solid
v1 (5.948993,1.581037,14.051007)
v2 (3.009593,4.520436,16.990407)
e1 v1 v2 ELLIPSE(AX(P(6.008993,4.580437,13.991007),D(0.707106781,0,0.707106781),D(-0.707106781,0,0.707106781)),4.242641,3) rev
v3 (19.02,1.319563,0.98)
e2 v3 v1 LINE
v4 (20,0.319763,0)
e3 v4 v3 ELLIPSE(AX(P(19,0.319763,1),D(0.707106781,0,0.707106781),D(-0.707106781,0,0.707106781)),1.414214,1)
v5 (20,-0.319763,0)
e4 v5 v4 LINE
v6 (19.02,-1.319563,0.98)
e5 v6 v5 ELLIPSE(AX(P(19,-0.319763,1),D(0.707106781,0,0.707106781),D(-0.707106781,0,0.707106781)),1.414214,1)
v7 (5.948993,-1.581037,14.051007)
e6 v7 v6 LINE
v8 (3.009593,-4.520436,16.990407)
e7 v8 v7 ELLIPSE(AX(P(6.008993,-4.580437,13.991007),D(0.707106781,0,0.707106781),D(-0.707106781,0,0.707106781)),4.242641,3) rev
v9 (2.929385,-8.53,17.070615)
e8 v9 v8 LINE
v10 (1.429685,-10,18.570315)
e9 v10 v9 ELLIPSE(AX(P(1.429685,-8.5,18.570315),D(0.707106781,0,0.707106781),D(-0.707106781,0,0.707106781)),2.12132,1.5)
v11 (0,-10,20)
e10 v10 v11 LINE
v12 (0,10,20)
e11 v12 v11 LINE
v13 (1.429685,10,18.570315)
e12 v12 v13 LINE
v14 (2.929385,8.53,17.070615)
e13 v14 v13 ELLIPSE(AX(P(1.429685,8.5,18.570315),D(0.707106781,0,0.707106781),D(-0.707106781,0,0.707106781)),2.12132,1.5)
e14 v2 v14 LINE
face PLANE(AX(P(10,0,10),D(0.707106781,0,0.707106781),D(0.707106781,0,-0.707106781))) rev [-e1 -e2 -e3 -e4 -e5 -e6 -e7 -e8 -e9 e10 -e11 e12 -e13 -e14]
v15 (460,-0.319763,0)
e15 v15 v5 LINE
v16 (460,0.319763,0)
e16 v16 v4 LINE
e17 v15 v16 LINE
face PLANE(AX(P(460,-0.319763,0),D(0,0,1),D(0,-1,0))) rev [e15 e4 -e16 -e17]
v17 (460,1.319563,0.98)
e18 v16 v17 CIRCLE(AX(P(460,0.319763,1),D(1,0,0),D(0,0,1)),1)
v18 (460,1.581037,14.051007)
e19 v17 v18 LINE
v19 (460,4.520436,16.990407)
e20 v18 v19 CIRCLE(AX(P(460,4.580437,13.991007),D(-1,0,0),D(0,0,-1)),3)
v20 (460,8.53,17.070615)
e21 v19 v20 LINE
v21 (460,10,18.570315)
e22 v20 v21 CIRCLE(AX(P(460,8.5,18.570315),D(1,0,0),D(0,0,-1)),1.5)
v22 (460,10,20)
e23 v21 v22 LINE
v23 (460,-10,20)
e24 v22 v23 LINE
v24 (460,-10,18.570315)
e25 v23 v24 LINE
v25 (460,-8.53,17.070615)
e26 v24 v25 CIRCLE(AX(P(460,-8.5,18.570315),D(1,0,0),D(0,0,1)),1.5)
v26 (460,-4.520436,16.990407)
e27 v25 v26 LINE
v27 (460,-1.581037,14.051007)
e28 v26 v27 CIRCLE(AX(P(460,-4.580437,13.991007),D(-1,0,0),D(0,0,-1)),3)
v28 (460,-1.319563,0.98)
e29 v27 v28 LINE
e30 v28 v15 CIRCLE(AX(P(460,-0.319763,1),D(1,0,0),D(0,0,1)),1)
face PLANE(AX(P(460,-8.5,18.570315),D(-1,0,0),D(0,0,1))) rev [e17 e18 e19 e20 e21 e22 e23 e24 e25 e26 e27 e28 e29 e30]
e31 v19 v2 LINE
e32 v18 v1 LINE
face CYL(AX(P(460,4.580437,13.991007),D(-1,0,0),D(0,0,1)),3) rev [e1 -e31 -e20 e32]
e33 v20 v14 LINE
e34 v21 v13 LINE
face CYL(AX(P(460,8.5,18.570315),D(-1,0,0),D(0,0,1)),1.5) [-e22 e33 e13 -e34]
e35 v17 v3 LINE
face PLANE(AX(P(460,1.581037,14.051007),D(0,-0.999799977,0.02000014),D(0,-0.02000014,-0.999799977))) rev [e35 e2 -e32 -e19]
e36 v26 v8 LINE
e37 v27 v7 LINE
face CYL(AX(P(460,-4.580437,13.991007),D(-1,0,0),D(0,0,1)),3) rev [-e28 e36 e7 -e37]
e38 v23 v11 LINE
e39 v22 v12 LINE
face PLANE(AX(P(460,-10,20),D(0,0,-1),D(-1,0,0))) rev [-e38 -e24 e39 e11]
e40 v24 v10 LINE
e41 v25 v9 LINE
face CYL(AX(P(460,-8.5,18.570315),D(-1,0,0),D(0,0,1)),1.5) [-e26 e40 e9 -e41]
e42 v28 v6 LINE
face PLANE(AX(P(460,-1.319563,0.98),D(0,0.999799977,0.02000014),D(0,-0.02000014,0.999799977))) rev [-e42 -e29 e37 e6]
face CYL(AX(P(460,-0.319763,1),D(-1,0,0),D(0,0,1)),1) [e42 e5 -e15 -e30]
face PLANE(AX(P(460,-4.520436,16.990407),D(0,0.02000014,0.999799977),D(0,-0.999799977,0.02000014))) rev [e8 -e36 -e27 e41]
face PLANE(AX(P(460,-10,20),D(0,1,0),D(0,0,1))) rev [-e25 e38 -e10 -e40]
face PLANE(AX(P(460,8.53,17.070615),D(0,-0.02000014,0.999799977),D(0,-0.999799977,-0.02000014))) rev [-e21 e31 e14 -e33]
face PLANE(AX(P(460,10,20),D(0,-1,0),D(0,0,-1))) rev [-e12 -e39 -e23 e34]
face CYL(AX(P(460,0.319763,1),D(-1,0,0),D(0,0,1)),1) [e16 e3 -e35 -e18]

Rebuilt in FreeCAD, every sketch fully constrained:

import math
import FreeCAD as App
import Part
import Sketcher

V = App.Vector
Q = App.Units.Quantity

doc = App.newDocument("Part")
params = doc.addObject("Spreadsheet::Sheet", "Params")
for row, (alias, value) in enumerate([
    ("sketch1_radius", "3 mm"),
    ("sketch1_radius2", "1 mm"),
    ("sketch1_radius3", "1 mm"),
    ("sketch1_radius4", "3 mm"),
    ("sketch1_radius5", "1.5 mm"),
    ("pad1_length", "460 mm"),
    ("sketch2_width", "20 mm"),
    ("sketch2_height", "30 mm"),
], start=1):
    params.set(f"A{row}", alias)
    params.set(f"B{row}", "=" + value)
    params.setAlias(f"B{row}", alias)

body = doc.addObject("PartDesign::Body", "Body")

sketch1 = body.newObject("Sketcher::SketchObject", "Sketch")
sketch1.AttachmentSupport = (doc.getObject("YZ_Plane"), [""])
sketch1.MapMode = "FlatFace"
sketch1.addGeometry(Part.LineSegment(V(10, 20, 0), V(-10, 20, 0)), False)
sketch1.addGeometry(Part.LineSegment(V(-10, 20, 0), V(-10, 18.570315, 0)), False)
sketch1.addGeometry(Part.ArcOfCircle(Part.Circle(V(-8.5, 18.570315, 0), V(0, 0, 1), 1.5), math.radians(180), math.radians(268.854)), False)
sketch1.addGeometry(Part.LineSegment(V(-8.53, 17.070615, 0), V(-4.520436, 16.990407, 0)), False)
sketch1.addGeometry(Part.ArcOfCircle(Part.Circle(V(-4.580437, 13.991007, 0), V(0, 0, 1), 3), math.radians(1.146), math.radians(88.854)), False)
sketch1.addGeometry(Part.LineSegment(V(-1.581037, 14.051007, 0), V(-1.319563, 0.98, 0)), False)
sketch1.addGeometry(Part.ArcOfCircle(Part.Circle(V(-0.319763, 1, 0), V(0, 0, 1), 1), math.radians(-178.854), math.radians(-90)), False)
sketch1.addGeometry(Part.LineSegment(V(-0.319763, 0, 0), V(0.319763, 0, 0)), False)
sketch1.addGeometry(Part.ArcOfCircle(Part.Circle(V(0.319763, 1, 0), V(0, 0, 1), 1), math.radians(-90), math.radians(-1.146)), False)
sketch1.addGeometry(Part.LineSegment(V(1.319563, 0.98, 0), V(1.581037, 14.051007, 0)), False)
sketch1.addGeometry(Part.ArcOfCircle(Part.Circle(V(4.580437, 13.991007, 0), V(0, 0, 1), 3), math.radians(91.146), math.radians(178.854)), False)
sketch1.addGeometry(Part.LineSegment(V(4.520436, 16.990407, 0), V(8.53, 17.070615, 0)), False)
sketch1.addGeometry(Part.ArcOfCircle(Part.Circle(V(8.5, 18.570315, 0), V(0, 0, 1), 1.5), math.radians(-88.854), math.radians(0)), False)
sketch1.addGeometry(Part.LineSegment(V(10, 18.570315, 0), V(10, 20, 0)), False)
sketch1.addConstraint(Sketcher.Constraint("Coincident", 0, 2, 1, 1))
sketch1.addConstraint(Sketcher.Constraint("Coincident", 1, 2, 2, 1))
sketch1.addConstraint(Sketcher.Constraint("Coincident", 2, 2, 3, 1))
sketch1.addConstraint(Sketcher.Constraint("Coincident", 3, 2, 4, 2))
sketch1.addConstraint(Sketcher.Constraint("Coincident", 4, 1, 5, 1))
sketch1.addConstraint(Sketcher.Constraint("Coincident", 5, 2, 6, 1))
sketch1.addConstraint(Sketcher.Constraint("Coincident", 6, 2, 7, 1))
sketch1.addConstraint(Sketcher.Constraint("Coincident", 7, 2, 8, 1))
sketch1.addConstraint(Sketcher.Constraint("Coincident", 8, 2, 9, 1))
sketch1.addConstraint(Sketcher.Constraint("Coincident", 9, 2, 10, 2))
sketch1.addConstraint(Sketcher.Constraint("Coincident", 10, 1, 11, 1))
sketch1.addConstraint(Sketcher.Constraint("Coincident", 11, 2, 12, 1))
sketch1.addConstraint(Sketcher.Constraint("Coincident", 12, 2, 13, 1))
sketch1.addConstraint(Sketcher.Constraint("Coincident", 13, 2, 0, 1))
sketch1.addConstraint(Sketcher.Constraint("Horizontal", 0))
sketch1.addConstraint(Sketcher.Constraint("Vertical", 1))
sketch1.addConstraint(Sketcher.Constraint("Horizontal", 7))
sketch1.addConstraint(Sketcher.Constraint("Vertical", 13))
sketch1.addConstraint(Sketcher.Constraint("PointOnObject", 6, 2, -1))
sketch1.addConstraint(Sketcher.Constraint("Radius", 4, Q("3 mm")))
sketch1.addConstraint(Sketcher.Constraint("Radius", 6, Q("1 mm")))
sketch1.addConstraint(Sketcher.Constraint("Radius", 8, Q("1 mm")))
sketch1.addConstraint(Sketcher.Constraint("Radius", 10, Q("3 mm")))
sketch1.addConstraint(Sketcher.Constraint("Radius", 2, Q("1.5 mm")))
sketch1.addConstraint(Sketcher.Constraint("Radius", 12, Q("1.5 mm")))
sketch1.addConstraint(Sketcher.Constraint("DistanceX", 0, 2, 0, 1, Q("20 mm")))
sketch1.addConstraint(Sketcher.Constraint("DistanceX", 0, 2, -1, 1, Q("10 mm")))
sketch1.addConstraint(Sketcher.Constraint("DistanceY", -1, 1, 0, 2, Q("20 mm")))
sketch1.addConstraint(Sketcher.Constraint("DistanceX", 5, 2, 10, 3, Q("5.899999 mm")))
sketch1.addConstraint(Sketcher.Constraint("DistanceX", 2, 2, -1, 1, Q("8.53 mm")))
sketch1.addConstraint(Sketcher.Constraint("DistanceY", -1, 1, 5, 2, Q("0.98 mm")))
sketch1.addConstraint(Sketcher.Constraint("DistanceY", -1, 1, 8, 2, Q("0.98 mm")))
sketch1.addConstraint(Sketcher.Constraint("DistanceX", -1, 1, 11, 2, Q("8.53 mm")))
sketch1.addConstraint(Sketcher.Constraint("DistanceX", 4, 3, 3, 2, Q("0.06 mm")))
sketch1.addConstraint(Sketcher.Constraint("DistanceY", 4, 3, 4, 1, Q("0.06 mm")))
sketch1.addConstraint(Sketcher.Constraint("DistanceY", 10, 3, 4, 1, Q("0.06 mm")))
sketch1.addConstraint(Sketcher.Constraint("DistanceY", 10, 3, 9, 2, Q("0.06 mm")))
sketch1.addConstraint(Sketcher.Constraint("DistanceX", 10, 1, 10, 3, Q("0.06 mm")))
sketch1.addConstraint(Sketcher.Constraint("DistanceX", 4, 3, 8, 3, Q("4.9002 mm")))
sketch1.addConstraint(Sketcher.Constraint("DistanceY", 2, 2, 1, 2, Q("1.4997 mm")))
sketch1.addConstraint(Sketcher.Constraint("DistanceX", 5, 2, 6, 2, Q("0.9998 mm")))
sketch1.addConstraint(Sketcher.Constraint("DistanceX", 4, 1, 7, 2, Q("1.9008 mm")))
sketch1.addConstraint(Sketcher.Constraint("DistanceY", 11, 2, 12, 2, Q("1.4997 mm")))
sketch1.addConstraint(Sketcher.Constraint("DistanceX", 7, 1, 7, 2, Q("0.639525 mm")))
sketch1.addConstraint(Sketcher.Constraint("DistanceY", 1, 2, 1, 1, Q("1.429685 mm")))
sketch1.addConstraint(Sketcher.Constraint("DistanceY", 13, 1, 13, 2, Q("1.429685 mm")))
sketch1.addConstraint(Sketcher.Constraint("Distance", 3, Q("4.010366 mm")))
sketch1.addConstraint(Sketcher.Constraint("Distance", 5, Q("13.073622 mm")))
sketch1.setExpression("Constraints[19]", "Params.sketch1_radius")
sketch1.setExpression("Constraints[20]", "Params.sketch1_radius2")
sketch1.setExpression("Constraints[21]", "Params.sketch1_radius3")
sketch1.setExpression("Constraints[22]", "Params.sketch1_radius4")
sketch1.setExpression("Constraints[23]", "Params.sketch1_radius5")
pad1 = body.newObject("PartDesign::Pad", "Pad")
pad1.Profile = sketch1
pad1.setExpression("Length", "Params.pad1_length")

sketch2 = body.newObject("Sketcher::SketchObject", "Sketch001")
sketch2.Placement = App.Placement(V(10, 0, 10), App.Rotation(V(0, -1, 0), V(-0.707106781, 0, 0.707106781), V(-0.707106781, 0, -0.707106781), "ZXY"))
sketch2.addGeometry(Part.LineSegment(V(-10, 15, 0), V(-10, -15, 0)), False)
sketch2.addGeometry(Part.LineSegment(V(-10, -15, 0), V(10, -15, 0)), False)
sketch2.addGeometry(Part.LineSegment(V(10, -15, 0), V(10, 15, 0)), False)
sketch2.addGeometry(Part.LineSegment(V(10, 15, 0), V(-10, 15, 0)), False)
sketch2.addConstraint(Sketcher.Constraint("Coincident", 0, 2, 1, 1))
sketch2.addConstraint(Sketcher.Constraint("Coincident", 1, 2, 2, 1))
sketch2.addConstraint(Sketcher.Constraint("Coincident", 2, 2, 3, 1))
sketch2.addConstraint(Sketcher.Constraint("Coincident", 3, 2, 0, 1))
sketch2.addConstraint(Sketcher.Constraint("Vertical", 0))
sketch2.addConstraint(Sketcher.Constraint("Horizontal", 1))
sketch2.addConstraint(Sketcher.Constraint("Vertical", 2))
sketch2.addConstraint(Sketcher.Constraint("Horizontal", 3))
sketch2.addConstraint(Sketcher.Constraint("Symmetric", 0, 2, 2, 2, -1, 1))
sketch2.addConstraint(Sketcher.Constraint("DistanceX", 1, 1, 1, 2, Q("20 mm")))
sketch2.addConstraint(Sketcher.Constraint("DistanceY", 0, 2, 0, 1, Q("30 mm")))
sketch2.setExpression("Constraints[9]", "Params.sketch2_width")
sketch2.setExpression("Constraints[10]", "Params.sketch2_height")
pocket1 = body.newObject("PartDesign::Pocket", "Pocket")
pocket1.Profile = sketch2
pocket1.Type = "ThroughAll"
pocket1.Reversed = True

doc.recompute()
